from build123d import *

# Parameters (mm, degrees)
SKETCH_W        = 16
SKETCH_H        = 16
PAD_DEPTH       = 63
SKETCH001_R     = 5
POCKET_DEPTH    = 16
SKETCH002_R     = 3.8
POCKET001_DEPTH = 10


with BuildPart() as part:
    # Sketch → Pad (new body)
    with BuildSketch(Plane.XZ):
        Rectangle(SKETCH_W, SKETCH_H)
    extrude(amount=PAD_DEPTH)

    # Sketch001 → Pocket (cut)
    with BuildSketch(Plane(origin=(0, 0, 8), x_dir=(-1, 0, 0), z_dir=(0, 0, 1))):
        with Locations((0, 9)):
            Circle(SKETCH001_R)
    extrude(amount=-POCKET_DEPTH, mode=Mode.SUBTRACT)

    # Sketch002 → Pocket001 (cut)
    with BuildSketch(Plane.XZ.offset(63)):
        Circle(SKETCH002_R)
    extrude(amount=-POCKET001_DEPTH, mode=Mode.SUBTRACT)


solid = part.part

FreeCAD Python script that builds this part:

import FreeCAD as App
import Part
import Sketcher


def add_polygon(sketch, points):
    """Adds a closed chain of lines whose ends are joined by coincident constraints."""
    first, n = sketch.GeometryCount, len(points)
    for a, b in zip(points, points[1:] + points[:1]):
        sketch.addGeometry(Part.LineSegment(App.Vector(*a, 0), App.Vector(*b, 0)), False)
    for i in range(n):
        sketch.addConstraint(Sketcher.Constraint("Coincident", first + i, 2, first + (i + 1) % n, 1))

doc = App.newDocument("Part")
body = doc.addObject("PartDesign::Body", "Body")

# Sketch on XZ plane
sketch1 = doc.addObject("Sketcher::SketchObject", "Sketch")
body.addObject(sketch1)
sketch1.AttachmentSupport = (doc.XZ_Plane, [""])
sketch1.MapMode = "FlatFace"
add_polygon(sketch1, [(-8, 8), (-8, -8), (8, -8), (8, 8)])  # lines 0-3
sketch1.addConstraint(Sketcher.Constraint("Vertical", 0))
sketch1.addConstraint(Sketcher.Constraint("Horizontal", 1))
sketch1.addConstraint(Sketcher.Constraint("Vertical", 2))
sketch1.addConstraint(Sketcher.Constraint("Horizontal", 3))
sketch1.addConstraint(Sketcher.Constraint("Symmetric", 0, 2, 2, 2, -1, 1))
sketch1.addConstraint(Sketcher.Constraint("Equal", 3, 0))
sketch1.addConstraint(Sketcher.Constraint("DistanceX", 1, 1, 1, 2, 16.0))
pad1 = doc.addObject("PartDesign::Pad", "Pad")
body.addObject(pad1)
pad1.Profile = sketch1
pad1.Length = 63

# Sketch on XY plane
sketch2 = doc.addObject("Sketcher::SketchObject", "Sketch001")
body.addObject(sketch2)
sketch2.AttachmentSupport = (doc.XY_Plane, [""])
sketch2.MapMode = "FlatFace"
sketch2.AttachmentOffset = App.Placement(App.Vector(0, 0, 8), App.Rotation())
sketch2.addGeometry(Part.Circle(App.Vector(0, -9, 0), App.Vector(0, 0, 1), 5), False)
sketch2.addConstraint(Sketcher.Constraint("PointOnObject", 0, 3, -2))
sketch2.addConstraint(Sketcher.Constraint("Diameter", 0, 10.0))
sketch2.addConstraint(Sketcher.Constraint("DistanceY", 0, 3, -1, 1, 9.0))
pocket1 = doc.addObject("PartDesign::Pocket", "Pocket")
body.addObject(pocket1)
pocket1.Profile = sketch2
pocket1.Length = 16

# Sketch on XZ plane
sketch3 = doc.addObject("Sketcher::SketchObject", "Sketch002")
body.addObject(sketch3)
sketch3.AttachmentSupport = (doc.XZ_Plane, [""])
sketch3.MapMode = "FlatFace"
sketch3.AttachmentOffset = App.Placement(App.Vector(0, 0, 63), App.Rotation())
sketch3.addGeometry(Part.Circle(App.Vector(0, 0, 0), App.Vector(0, 0, 1), 3.8), False)
sketch3.addConstraint(Sketcher.Constraint("Coincident", 0, 3, -1, 1))
sketch3.addConstraint(Sketcher.Constraint("Diameter", 0, 7.6))
pocket2 = doc.addObject("PartDesign::Pocket", "Pocket001")
body.addObject(pocket2)
pocket2.Profile = sketch3
pocket2.Length = 10

doc.recompute()
